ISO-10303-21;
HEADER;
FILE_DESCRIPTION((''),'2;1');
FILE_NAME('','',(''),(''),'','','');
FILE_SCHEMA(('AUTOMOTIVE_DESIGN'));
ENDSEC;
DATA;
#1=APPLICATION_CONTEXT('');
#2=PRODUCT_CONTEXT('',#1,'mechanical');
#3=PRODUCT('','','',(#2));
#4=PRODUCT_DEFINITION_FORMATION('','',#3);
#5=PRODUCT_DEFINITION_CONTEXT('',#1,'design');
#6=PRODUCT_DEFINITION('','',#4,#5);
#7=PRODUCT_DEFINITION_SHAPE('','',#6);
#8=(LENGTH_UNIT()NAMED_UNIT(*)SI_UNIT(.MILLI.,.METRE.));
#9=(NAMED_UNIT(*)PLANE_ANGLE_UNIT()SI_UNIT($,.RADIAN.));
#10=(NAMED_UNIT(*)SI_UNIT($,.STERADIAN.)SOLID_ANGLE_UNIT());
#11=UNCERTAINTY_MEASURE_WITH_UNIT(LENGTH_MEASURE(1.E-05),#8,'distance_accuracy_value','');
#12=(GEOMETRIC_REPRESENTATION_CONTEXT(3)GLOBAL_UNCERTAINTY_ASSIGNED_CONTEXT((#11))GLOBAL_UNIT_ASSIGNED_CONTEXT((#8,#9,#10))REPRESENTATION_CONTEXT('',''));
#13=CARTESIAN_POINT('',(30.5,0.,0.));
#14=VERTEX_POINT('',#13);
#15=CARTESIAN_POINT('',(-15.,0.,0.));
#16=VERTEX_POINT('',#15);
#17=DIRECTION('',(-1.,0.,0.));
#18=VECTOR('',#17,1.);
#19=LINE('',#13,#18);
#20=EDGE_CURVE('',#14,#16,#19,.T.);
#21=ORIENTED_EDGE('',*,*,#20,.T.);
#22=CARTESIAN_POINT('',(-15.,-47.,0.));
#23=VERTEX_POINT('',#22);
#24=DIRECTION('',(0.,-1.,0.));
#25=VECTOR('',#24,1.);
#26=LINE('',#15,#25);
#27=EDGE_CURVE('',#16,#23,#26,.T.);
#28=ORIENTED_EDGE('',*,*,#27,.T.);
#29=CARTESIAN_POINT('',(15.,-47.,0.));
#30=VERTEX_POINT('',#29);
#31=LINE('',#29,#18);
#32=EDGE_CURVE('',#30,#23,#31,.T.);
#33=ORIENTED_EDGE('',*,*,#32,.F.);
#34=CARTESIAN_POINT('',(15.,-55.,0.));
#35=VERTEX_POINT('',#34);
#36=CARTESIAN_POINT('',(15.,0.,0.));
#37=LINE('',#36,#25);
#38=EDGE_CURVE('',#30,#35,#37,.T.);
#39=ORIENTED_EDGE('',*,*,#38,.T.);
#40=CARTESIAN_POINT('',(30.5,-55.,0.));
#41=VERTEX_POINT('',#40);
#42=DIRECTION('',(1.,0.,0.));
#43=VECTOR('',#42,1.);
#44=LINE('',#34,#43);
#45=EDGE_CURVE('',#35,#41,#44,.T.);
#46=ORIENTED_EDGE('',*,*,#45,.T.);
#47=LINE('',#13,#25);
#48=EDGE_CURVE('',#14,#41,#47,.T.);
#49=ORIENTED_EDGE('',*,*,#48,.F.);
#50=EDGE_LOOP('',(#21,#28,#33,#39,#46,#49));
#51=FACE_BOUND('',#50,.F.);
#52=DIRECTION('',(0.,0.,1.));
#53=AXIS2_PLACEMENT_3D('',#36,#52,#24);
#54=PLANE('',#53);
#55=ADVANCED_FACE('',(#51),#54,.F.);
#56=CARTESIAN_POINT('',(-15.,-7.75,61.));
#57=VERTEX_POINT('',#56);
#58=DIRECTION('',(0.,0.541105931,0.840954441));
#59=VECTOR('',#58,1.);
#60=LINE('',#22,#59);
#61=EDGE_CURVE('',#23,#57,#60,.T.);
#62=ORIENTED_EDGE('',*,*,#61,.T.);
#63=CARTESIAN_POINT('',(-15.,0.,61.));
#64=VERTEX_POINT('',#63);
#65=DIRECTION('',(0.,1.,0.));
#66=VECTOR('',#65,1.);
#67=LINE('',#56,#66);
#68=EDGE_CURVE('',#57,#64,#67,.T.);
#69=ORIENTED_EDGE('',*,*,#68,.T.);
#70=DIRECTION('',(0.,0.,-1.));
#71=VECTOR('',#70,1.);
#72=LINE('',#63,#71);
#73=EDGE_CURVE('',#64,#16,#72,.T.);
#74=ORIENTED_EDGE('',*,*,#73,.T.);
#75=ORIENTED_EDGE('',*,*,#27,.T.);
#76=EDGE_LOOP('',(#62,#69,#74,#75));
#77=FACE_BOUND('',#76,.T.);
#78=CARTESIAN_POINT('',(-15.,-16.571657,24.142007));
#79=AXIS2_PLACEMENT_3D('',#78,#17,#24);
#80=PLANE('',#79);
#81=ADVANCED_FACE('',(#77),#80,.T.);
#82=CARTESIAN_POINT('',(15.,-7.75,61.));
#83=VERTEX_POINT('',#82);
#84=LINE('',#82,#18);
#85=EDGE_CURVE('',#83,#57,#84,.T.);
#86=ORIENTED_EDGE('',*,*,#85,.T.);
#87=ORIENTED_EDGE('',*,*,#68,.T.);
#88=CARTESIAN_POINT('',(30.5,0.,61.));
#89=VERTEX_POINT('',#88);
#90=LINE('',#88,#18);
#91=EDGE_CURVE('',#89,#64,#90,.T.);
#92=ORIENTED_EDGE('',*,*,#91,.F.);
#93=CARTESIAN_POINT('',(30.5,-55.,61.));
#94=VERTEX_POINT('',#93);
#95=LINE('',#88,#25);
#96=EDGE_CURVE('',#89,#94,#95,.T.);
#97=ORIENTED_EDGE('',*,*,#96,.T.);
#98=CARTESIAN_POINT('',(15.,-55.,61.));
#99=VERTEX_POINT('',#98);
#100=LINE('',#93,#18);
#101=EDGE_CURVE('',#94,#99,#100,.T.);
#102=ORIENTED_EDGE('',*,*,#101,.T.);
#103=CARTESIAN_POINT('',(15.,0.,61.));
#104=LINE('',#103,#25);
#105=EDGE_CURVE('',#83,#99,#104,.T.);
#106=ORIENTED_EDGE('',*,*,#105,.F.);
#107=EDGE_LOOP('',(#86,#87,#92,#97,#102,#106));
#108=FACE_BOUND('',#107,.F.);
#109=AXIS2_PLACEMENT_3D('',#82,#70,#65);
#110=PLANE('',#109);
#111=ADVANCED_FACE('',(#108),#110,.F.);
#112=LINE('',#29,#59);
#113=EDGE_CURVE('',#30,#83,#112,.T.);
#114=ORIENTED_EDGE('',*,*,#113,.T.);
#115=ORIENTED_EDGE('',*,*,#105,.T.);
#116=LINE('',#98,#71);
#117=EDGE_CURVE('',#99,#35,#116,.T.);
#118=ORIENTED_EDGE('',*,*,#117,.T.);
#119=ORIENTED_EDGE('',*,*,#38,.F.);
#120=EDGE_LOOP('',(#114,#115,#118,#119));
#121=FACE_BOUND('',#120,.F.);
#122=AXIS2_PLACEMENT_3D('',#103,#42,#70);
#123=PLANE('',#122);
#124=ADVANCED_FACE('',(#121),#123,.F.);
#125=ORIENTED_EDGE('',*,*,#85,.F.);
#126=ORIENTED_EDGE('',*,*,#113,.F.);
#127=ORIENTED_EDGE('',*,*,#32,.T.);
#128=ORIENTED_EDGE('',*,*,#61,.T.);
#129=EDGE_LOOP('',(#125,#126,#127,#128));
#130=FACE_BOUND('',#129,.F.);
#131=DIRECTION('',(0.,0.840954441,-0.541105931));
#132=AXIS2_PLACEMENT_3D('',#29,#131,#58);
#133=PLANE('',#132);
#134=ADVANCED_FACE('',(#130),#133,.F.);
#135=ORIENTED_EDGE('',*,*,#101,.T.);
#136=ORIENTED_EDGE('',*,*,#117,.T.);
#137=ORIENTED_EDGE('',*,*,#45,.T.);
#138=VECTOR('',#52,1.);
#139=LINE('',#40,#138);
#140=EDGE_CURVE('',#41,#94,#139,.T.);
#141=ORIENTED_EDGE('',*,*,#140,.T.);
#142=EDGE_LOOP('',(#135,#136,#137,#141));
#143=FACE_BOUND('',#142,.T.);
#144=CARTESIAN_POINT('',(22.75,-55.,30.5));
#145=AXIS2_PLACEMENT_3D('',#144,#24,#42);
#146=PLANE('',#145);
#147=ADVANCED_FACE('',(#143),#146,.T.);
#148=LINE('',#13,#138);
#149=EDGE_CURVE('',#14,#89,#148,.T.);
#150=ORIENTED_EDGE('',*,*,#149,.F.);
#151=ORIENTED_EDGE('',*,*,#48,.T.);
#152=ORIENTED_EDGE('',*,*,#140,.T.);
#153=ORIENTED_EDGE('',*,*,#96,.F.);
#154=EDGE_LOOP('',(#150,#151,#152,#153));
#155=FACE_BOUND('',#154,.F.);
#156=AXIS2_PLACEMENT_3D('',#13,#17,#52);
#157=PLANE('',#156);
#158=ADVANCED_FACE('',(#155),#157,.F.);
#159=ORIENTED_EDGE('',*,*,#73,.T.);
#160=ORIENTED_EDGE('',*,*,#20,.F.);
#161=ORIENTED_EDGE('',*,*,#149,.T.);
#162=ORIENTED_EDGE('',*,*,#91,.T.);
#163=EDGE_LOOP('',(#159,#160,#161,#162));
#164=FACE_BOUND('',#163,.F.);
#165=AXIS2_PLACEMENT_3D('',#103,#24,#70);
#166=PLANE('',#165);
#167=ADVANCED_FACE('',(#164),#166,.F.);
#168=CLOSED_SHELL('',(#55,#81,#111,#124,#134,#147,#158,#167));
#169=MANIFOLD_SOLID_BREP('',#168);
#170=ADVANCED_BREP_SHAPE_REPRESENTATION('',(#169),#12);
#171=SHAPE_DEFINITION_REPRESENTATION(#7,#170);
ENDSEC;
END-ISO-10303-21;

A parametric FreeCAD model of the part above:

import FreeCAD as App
import Part
import Sketcher
from FreeCAD import Vector
Q = App.Units.Quantity


def add_polygon(sketch, points):
    """Adds a closed chain of lines whose ends are joined by coincident constraints."""
    first, n = sketch.GeometryCount, len(points)
    for a, b in zip(points, points[1:] + points[:1]):
        sketch.addGeometry(Part.LineSegment(App.Vector(*a, 0), App.Vector(*b, 0)), False)
    for i in range(n):
        sketch.addConstraint(Sketcher.Constraint("Coincident", first + i, 2, first + (i + 1) % n, 1))

doc = App.newDocument("Part")
body = doc.addObject("PartDesign::Body", "Body")

# Sketch on XZ plane
sketch1 = doc.addObject("Sketcher::SketchObject", "Sketch")
body.addObject(sketch1)
sketch1.AttachmentSupport = (doc.XZ_Plane, [""])
sketch1.MapMode = "FlatFace"
add_polygon(sketch1, [(15, 61), (15, 0), (30, 0), (30, 61)])  # lines 0-3
sketch1.addConstraint([
    Sketcher.Constraint("Vertical", 0),
    Sketcher.Constraint("Horizontal", 1),
    Sketcher.Constraint("Vertical", 2),
    Sketcher.Constraint("Horizontal", 3),
    Sketcher.Constraint("PointOnObject", 0, 2, -1),
    Sketcher.Constraint("DistanceY", 0, 2, 0, 1, Q("61 mm")),
    Sketcher.Constraint("DistanceX", 1, 1, 1, 2, Q("15.5 mm")),
    Sketcher.Constraint("DistanceX", -1, 1, 0, 2, Q("15 mm")),
])
pad1 = doc.addObject("PartDesign::Pad", "Pad")
body.addObject(pad1)
pad1.Profile = sketch1
pad1.Length = 55

# Sketch on YZ plane
sketch2 = doc.addObject("Sketcher::SketchObject", "Sketch001")
body.addObject(sketch2)
sketch2.AttachmentSupport = (doc.YZ_Plane, [""])
sketch2.MapMode = "FlatFace"
sketch2.AttachmentOffset = App.Placement(Vector(0, 0, 15), App.Rotation())
add_polygon(sketch2, [(-8, 61), (0, 61), (0, 0), (-47, 0)])  # lines 0-3
sketch2.addConstraint([
    Sketcher.Constraint("Horizontal", 0),
    Sketcher.Constraint("Vertical", 1),
    Sketcher.Constraint("Horizontal", 2),
    Sketcher.Constraint("Coincident", 1, 2, -1, 1),
    Sketcher.Constraint("DistanceX", 2, 2, 2, 1, Q("47 mm")),
    Sketcher.Constraint("DistanceY", 1, 2, 1, 1, Q("61 mm")),
    Sketcher.Constraint("DistanceX", 0, 1, 0, 2, Q("7.75 mm")),
])
pad2 = doc.addObject("PartDesign::Pad", "Pad001")
body.addObject(pad2)
pad2.Profile = sketch2
pad2.Length = 30
pad2.Reversed = True

doc.recompute()
